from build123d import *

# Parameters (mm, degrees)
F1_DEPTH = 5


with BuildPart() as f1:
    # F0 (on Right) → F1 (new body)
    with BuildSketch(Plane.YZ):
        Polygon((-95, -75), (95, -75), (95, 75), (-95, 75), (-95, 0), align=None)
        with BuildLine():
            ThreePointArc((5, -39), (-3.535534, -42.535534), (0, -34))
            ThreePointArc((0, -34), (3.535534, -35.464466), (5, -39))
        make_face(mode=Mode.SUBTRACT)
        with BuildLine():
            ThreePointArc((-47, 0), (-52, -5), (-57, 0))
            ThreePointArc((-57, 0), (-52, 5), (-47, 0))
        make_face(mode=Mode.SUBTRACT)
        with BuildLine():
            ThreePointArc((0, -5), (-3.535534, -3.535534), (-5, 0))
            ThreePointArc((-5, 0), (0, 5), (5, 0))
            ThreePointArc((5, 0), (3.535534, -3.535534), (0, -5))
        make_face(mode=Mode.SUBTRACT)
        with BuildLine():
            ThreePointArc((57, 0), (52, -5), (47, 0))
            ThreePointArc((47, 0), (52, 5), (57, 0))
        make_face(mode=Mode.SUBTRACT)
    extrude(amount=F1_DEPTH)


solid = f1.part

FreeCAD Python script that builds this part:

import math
import FreeCAD as App
import Part
import Sketcher

V = App.Vector
Q = App.Units.Quantity

doc = App.newDocument("Part")
body = doc.addObject("PartDesign::Body", "Body")

# Sketch on YZ plane
sketch1 = doc.addObject("Sketcher::SketchObject", "Sketch")
body.addObject(sketch1)
sketch1.AttachmentSupport = (doc.YZ_Plane, [""])
sketch1.MapMode = "FlatFace"
sketch1.addGeometry(Part.LineSegment(V(-95, -75, 0), V(95, -75, 0)), False)
sketch1.addGeometry(Part.LineSegment(V(95, -75, 0), V(95, 75, 0)), False)
sketch1.addGeometry(Part.LineSegment(V(95, 75, 0), V(-95, 75, 0)), False)
sketch1.addGeometry(Part.LineSegment(V(-95, 75, 0), V(-95, -75, 0)), False)
sketch1.addGeometry(Part.ArcOfCircle(Part.Circle(V(0, -39, 0), V(0, 0, 1), 5), math.radians(-0.000004), math.radians(90.000004)), False)
sketch1.addGeometry(Part.ArcOfCircle(Part.Circle(V(0, -39, 0), V(0, 0, 1), 5), math.radians(89.999999), math.radians(360.000001)), False)
sketch1.addGeometry(Part.Circle(V(-52, 0, 0), V(0, 0, 1), 5), False)
sketch1.addGeometry(Part.ArcOfCircle(Part.Circle(V(0, 0, 0), V(0, 0, 1), 5), math.radians(-90.000004), math.radians(0.000004)), False)
sketch1.addGeometry(Part.ArcOfCircle(Part.Circle(V(0, 0, 0), V(0, 0, 1), 5), math.radians(179.999996), math.radians(270.000004)), False)
sketch1.addGeometry(Part.ArcOfCircle(Part.Circle(V(0, 0, 0), V(0, 0, 1), 5), math.radians(0), math.radians(180)), False)
sketch1.addGeometry(Part.Circle(V(52, 0, 0), V(0, 0, 1), 5), False)
sketch1.addConstraint(Sketcher.Constraint("Coincident", 0, 2, 1, 1))
sketch1.addConstraint(Sketcher.Constraint("Coincident", 1, 2, 2, 1))
sketch1.addConstraint(Sketcher.Constraint("Coincident", 2, 2, 3, 1))
sketch1.addConstraint(Sketcher.Constraint("Coincident", 3, 2, 0, 1))
sketch1.addConstraint(Sketcher.Constraint("Tangent", 4, 1, 5, 2))
sketch1.addConstraint(Sketcher.Constraint("Coincident", 5, 1, 4, 2))
sketch1.addConstraint(Sketcher.Constraint("Tangent", 7, 1, 8, 2))
sketch1.addConstraint(Sketcher.Constraint("Tangent", 8, 1, 9, 2))
sketch1.addConstraint(Sketcher.Constraint("Tangent", 9, 1, 7, 2))
sketch1.addConstraint(Sketcher.Constraint("Horizontal", 0))
sketch1.addConstraint(Sketcher.Constraint("Vertical", 1))
sketch1.addConstraint(Sketcher.Constraint("Horizontal", 2))
sketch1.addConstraint(Sketcher.Constraint("Vertical", 3))
sketch1.addConstraint(Sketcher.Constraint("Coincident", 7, 3, -1, 1))
sketch1.addConstraint(Sketcher.Constraint("Equal", 5, 6))
sketch1.addConstraint(Sketcher.Constraint("Equal", 6, 7))
sketch1.addConstraint(Sketcher.Constraint("Equal", 9, 10))
sketch1.addConstraint(Sketcher.Constraint("Symmetric", 6, 3, 10, 3, -1, 1))
sketch1.addConstraint(Sketcher.Constraint("Symmetric", 0, 2, 2, 2, -1, 1))
sketch1.addConstraint(Sketcher.Constraint("PointOnObject", 4, 3, -2))
sketch1.addConstraint(Sketcher.Constraint("PointOnObject", 6, 3, -1))
sketch1.addConstraint(Sketcher.Constraint("PointOnObject", 5, 1, -2))
sketch1.addConstraint(Sketcher.Constraint("PointOnObject", 7, 1, -2))
sketch1.addConstraint(Sketcher.Constraint("PointOnObject", 8, 1, -1))
sketch1.addConstraint(Sketcher.Constraint("PointOnObject", 9, 1, -1))
sketch1.addConstraint(Sketcher.Constraint("Horizontal", 5, 3, 4, 1))
sketch1.addConstraint(Sketcher.Constraint("Diameter", 6, Q("10 mm")))
sketch1.addConstraint(Sketcher.Constraint("DistanceX", 0, 1, 0, 2, Q("190 mm")))
sketch1.addConstraint(Sketcher.Constraint("DistanceY", 1, 1, 1, 2, Q("150 mm")))
sketch1.addConstraint(Sketcher.Constraint("DistanceY", 4, 3, -1, 1, Q("39 mm")))
sketch1.addConstraint(Sketcher.Constraint("DistanceX", 6, 3, -1, 1, Q("52 mm")))
pad1 = doc.addObject("PartDesign::Pad", "Pad")
body.addObject(pad1)
pad1.Profile = sketch1
pad1.Length = 5

doc.recompute()
